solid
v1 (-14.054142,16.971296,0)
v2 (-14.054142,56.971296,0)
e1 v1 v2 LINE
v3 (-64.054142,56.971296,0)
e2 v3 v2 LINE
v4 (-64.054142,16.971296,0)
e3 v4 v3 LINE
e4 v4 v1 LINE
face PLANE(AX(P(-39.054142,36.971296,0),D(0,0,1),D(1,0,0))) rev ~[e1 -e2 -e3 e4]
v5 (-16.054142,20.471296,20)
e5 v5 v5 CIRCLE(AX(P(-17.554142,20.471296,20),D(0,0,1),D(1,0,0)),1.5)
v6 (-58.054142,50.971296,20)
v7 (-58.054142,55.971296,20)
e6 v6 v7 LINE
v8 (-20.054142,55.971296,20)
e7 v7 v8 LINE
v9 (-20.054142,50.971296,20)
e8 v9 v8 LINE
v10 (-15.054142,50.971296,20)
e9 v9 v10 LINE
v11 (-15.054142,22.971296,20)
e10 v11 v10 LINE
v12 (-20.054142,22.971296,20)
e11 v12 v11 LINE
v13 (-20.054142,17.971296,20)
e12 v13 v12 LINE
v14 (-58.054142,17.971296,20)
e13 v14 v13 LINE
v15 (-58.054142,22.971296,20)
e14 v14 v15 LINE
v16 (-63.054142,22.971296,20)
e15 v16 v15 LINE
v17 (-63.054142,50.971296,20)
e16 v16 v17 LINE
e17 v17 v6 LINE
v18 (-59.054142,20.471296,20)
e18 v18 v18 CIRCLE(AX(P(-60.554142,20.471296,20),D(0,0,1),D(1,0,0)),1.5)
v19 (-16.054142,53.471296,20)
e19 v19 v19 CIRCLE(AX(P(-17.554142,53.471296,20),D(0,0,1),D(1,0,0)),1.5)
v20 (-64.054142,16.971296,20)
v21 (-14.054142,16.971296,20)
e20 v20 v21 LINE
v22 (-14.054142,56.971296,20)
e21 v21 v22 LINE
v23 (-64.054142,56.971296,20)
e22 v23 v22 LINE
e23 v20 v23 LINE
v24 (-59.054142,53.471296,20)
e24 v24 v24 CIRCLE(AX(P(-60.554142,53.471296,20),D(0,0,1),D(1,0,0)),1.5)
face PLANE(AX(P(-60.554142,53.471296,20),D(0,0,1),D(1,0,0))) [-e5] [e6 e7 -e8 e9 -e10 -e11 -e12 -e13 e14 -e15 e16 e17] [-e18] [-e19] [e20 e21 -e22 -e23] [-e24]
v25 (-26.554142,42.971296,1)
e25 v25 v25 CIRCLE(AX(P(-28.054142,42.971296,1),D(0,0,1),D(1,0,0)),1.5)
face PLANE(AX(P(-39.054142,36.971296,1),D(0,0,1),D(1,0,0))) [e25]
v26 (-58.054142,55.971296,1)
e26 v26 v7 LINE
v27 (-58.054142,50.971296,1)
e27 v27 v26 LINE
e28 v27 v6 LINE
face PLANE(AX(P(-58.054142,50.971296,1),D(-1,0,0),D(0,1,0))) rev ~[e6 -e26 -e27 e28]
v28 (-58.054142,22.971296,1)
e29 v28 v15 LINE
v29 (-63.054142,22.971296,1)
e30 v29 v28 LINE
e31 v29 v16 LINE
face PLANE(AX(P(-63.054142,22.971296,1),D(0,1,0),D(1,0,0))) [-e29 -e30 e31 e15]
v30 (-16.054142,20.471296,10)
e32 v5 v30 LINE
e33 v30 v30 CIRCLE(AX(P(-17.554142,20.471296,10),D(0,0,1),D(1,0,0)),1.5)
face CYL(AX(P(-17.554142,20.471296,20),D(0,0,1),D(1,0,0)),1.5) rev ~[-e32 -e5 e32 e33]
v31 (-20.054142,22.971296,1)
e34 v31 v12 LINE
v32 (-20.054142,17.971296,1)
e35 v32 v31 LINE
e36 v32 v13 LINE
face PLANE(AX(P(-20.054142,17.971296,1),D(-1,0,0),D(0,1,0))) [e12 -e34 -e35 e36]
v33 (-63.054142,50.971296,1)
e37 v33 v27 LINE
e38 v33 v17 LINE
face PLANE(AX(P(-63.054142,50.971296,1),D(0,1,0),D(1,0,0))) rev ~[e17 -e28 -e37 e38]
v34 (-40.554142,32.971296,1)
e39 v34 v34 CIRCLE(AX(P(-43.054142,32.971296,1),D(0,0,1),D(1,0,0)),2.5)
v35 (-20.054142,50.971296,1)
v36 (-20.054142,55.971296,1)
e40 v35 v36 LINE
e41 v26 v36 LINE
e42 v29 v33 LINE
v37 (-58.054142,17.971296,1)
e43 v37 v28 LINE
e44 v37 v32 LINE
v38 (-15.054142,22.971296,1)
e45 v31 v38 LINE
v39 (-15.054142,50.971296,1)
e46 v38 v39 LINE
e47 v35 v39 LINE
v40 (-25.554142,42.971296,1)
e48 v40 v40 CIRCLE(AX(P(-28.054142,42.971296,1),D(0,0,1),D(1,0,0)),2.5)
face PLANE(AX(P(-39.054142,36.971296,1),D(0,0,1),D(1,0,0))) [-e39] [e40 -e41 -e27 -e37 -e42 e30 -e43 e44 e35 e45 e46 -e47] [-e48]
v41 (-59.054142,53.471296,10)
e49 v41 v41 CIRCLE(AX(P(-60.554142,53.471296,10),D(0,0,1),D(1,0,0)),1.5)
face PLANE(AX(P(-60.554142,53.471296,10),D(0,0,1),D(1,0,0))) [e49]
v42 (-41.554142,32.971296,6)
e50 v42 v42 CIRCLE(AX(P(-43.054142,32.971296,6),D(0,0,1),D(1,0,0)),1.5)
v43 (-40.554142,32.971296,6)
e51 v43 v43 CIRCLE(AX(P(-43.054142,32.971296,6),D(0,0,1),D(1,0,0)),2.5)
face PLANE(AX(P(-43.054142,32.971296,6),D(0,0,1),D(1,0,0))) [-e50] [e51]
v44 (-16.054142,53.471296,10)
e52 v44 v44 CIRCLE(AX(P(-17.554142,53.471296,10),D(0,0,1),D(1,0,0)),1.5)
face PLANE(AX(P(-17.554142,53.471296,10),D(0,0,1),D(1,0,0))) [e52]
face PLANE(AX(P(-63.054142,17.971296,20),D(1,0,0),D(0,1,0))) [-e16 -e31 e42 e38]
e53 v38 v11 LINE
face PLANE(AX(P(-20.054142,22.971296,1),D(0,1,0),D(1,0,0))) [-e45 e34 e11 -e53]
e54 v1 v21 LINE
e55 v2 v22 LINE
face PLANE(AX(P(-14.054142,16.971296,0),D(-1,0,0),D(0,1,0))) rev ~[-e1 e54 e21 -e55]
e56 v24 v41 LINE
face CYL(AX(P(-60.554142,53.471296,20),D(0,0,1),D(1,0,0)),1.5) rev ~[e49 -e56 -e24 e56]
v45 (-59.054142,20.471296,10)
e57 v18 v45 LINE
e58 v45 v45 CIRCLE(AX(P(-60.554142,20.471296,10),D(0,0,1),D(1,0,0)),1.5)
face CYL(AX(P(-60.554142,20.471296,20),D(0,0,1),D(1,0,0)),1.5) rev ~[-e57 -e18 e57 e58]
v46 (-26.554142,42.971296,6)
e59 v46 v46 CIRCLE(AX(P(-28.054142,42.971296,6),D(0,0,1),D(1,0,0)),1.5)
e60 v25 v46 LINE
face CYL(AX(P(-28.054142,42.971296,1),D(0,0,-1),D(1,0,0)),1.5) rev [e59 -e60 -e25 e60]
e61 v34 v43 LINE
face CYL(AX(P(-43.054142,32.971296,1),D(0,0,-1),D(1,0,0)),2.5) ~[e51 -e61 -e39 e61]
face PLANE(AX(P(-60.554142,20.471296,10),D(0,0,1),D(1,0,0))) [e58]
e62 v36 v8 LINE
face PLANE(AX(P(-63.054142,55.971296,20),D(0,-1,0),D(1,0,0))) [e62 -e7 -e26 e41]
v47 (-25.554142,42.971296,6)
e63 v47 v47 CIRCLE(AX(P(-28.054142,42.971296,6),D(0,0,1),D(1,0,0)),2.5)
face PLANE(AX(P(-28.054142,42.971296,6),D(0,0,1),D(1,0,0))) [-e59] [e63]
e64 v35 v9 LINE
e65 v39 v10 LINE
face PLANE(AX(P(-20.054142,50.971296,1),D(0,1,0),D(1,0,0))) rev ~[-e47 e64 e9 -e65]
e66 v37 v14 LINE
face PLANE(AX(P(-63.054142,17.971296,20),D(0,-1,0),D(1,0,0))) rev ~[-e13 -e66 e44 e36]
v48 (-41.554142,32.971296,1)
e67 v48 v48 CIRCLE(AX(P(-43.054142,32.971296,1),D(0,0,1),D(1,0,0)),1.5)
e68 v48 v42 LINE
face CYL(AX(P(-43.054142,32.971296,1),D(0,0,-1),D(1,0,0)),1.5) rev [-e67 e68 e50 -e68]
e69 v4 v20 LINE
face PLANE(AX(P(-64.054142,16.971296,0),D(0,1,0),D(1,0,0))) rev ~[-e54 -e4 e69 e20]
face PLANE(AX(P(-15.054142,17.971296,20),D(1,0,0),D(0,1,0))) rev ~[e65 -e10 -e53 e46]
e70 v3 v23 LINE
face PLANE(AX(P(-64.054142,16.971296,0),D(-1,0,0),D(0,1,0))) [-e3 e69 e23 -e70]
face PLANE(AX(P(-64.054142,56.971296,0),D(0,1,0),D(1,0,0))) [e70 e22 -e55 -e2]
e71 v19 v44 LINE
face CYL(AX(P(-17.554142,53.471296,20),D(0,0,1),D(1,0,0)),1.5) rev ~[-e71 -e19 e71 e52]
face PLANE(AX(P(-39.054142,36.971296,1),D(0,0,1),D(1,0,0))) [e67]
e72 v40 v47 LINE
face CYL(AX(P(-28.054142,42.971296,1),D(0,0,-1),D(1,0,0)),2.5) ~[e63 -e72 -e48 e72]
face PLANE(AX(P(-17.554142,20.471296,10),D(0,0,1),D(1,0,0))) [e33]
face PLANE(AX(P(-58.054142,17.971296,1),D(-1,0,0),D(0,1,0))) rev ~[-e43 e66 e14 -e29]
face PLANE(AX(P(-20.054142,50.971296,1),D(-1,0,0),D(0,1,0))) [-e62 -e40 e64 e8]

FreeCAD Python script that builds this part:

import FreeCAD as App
import Part
import Sketcher
Q = App.Units.Quantity


def add_polygon(sketch, points):
    """Adds a closed chain of lines whose ends are joined by coincident constraints."""
    first, n = sketch.GeometryCount, len(points)
    for a, b in zip(points, points[1:] + points[:1]):
        sketch.addGeometry(Part.LineSegment(App.Vector(*a, 0), App.Vector(*b, 0)), False)
    for i in range(n):
        sketch.addConstraint(Sketcher.Constraint("Coincident", first + i, 2, first + (i + 1) % n, 1))

doc = App.newDocument("Part")
body = doc.addObject("PartDesign::Body", "Body")

# Sketch on XY plane
sketch1 = body.newObject("Sketcher::SketchObject", "Sketch")
sketch1.AttachmentSupport = (doc.getObject("XY_Plane"), [""])
sketch1.MapMode = "FlatFace"
add_polygon(sketch1, [(-64, 57), (-64, 17), (-14, 17), (-14, 57)])  # lines 0-3
sketch1.addConstraint(Sketcher.Constraint("Vertical", 0))
sketch1.addConstraint(Sketcher.Constraint("Horizontal", 1))
sketch1.addConstraint(Sketcher.Constraint("Vertical", 2))
sketch1.addConstraint(Sketcher.Constraint("Horizontal", 3))
sketch1.addConstraint(Sketcher.Constraint("DistanceX", 1, 1, 1, 2, Q("50 mm")))
sketch1.addConstraint(Sketcher.Constraint("DistanceY", 0, 2, 0, 1, Q("40 mm")))
sketch1.addConstraint(Sketcher.Constraint("DistanceX", 0, 2, -1, 1, Q("64.054142 mm")))
sketch1.addConstraint(Sketcher.Constraint("DistanceY", -1, 1, 0, 2, Q("16.971296 mm")))
pad1 = body.newObject("PartDesign::Pad", "Pad")
pad1.Profile = sketch1
pad1.Length = 20

# Sketch on XY plane
sketch2 = body.newObject("Sketcher::SketchObject", "Sketch001")
sketch2.AttachmentSupport = (doc.getObject("XY_Plane"), [""])
sketch2.MapMode = "FlatFace"
sketch2.AttachmentOffset = App.Placement(App.Vector(0, 0, 20), App.Rotation())
add_polygon(sketch2, [(-63, 56), (-63, 18), (-15, 18), (-15, 56)])  # lines 0-3
sketch2.addConstraint(Sketcher.Constraint("Vertical", 0))
sketch2.addConstraint(Sketcher.Constraint("Horizontal", 1))
sketch2.addConstraint(Sketcher.Constraint("Vertical", 2))
sketch2.addConstraint(Sketcher.Constraint("Horizontal", 3))
sketch2.addConstraint(Sketcher.Constraint("DistanceX", 1, 1, 1, 2, Q("48 mm")))
sketch2.addConstraint(Sketcher.Constraint("DistanceY", 0, 2, 0, 1, Q("38 mm")))
sketch2.addConstraint(Sketcher.Constraint("DistanceX", 0, 2, -1, 1, Q("63.054142 mm")))
sketch2.addConstraint(Sketcher.Constraint("DistanceY", -1, 1, 0, 2, Q("17.971296 mm")))
pocket1 = body.newObject("PartDesign::Pocket", "Pocket")
pocket1.Profile = sketch2
pocket1.Length = 19

# Sketch on XY plane
sketch3 = body.newObject("Sketcher::SketchObject", "Sketch002")
sketch3.AttachmentSupport = (doc.getObject("XY_Plane"), [""])
sketch3.MapMode = "FlatFace"
sketch3.AttachmentOffset = App.Placement(App.Vector(0, 0, 1), App.Rotation())
add_polygon(sketch3, [(-63.1, 56), (-63.1, 51), (-58.1, 51), (-58.1, 56)])  # lines 0-3
add_polygon(sketch3, [(-63.1, 23), (-63.1, 18), (-58.1, 18), (-58.1, 23)])  # lines 4-7
add_polygon(sketch3, [(-20.1, 56), (-20.1, 51), (-15.1, 51), (-15.1, 56)])  # lines 8-11
add_polygon(sketch3, [(-20.1, 23), (-20.1, 18), (-15.1, 18), (-15.1, 23)])  # lines 12-15
sketch3.addConstraint(Sketcher.Constraint("Vertical", 0))
sketch3.addConstraint(Sketcher.Constraint("Horizontal", 1))
sketch3.addConstraint(Sketcher.Constraint("Vertical", 2))
sketch3.addConstraint(Sketcher.Constraint("Horizontal", 3))
sketch3.addConstraint(Sketcher.Constraint("Vertical", 4))
sketch3.addConstraint(Sketcher.Constraint("Horizontal", 5))
sketch3.addConstraint(Sketcher.Constraint("Vertical", 6))
sketch3.addConstraint(Sketcher.Constraint("Horizontal", 7))
sketch3.addConstraint(Sketcher.Constraint("Vertical", 8))
sketch3.addConstraint(Sketcher.Constraint("Horizontal", 9))
sketch3.addConstraint(Sketcher.Constraint("Vertical", 10))
sketch3.addConstraint(Sketcher.Constraint("Horizontal", 11))
sketch3.addConstraint(Sketcher.Constraint("Vertical", 12))
sketch3.addConstraint(Sketcher.Constraint("Horizontal", 13))
sketch3.addConstraint(Sketcher.Constraint("Vertical", 14))
sketch3.addConstraint(Sketcher.Constraint("Horizontal", 15))
sketch3.addConstraint(Sketcher.Constraint("Horizontal", 1, 2, 8, 2))
sketch3.addConstraint(Sketcher.Constraint("Horizontal", 3, 2, 10, 2))
sketch3.addConstraint(Sketcher.Constraint("Horizontal", 5, 2, 12, 2))
sketch3.addConstraint(Sketcher.Constraint("Horizontal", 7, 2, 14, 2))
sketch3.addConstraint(Sketcher.Constraint("Vertical", 3, 2, 4, 2))
sketch3.addConstraint(Sketcher.Constraint("Vertical", 2, 2, 5, 2))
sketch3.addConstraint(Sketcher.Constraint("Vertical", 11, 2, 12, 2))
sketch3.addConstraint(Sketcher.Constraint("Vertical", 10, 2, 13, 2))
sketch3.addConstraint(Sketcher.Constraint("Equal", 7, 9))
sketch3.addConstraint(Sketcher.Constraint("Equal", 15, 0))
sketch3.addConstraint(Sketcher.Constraint("Equal", 2, 4))
sketch3.addConstraint(Sketcher.Constraint("DistanceX", 1, 1, 1, 2, Q("5 mm")))
sketch3.addConstraint(Sketcher.Constraint("DistanceY", 4, 2, 0, 2, Q("33 mm")))
sketch3.addConstraint(Sketcher.Constraint("DistanceX", 1, 2, 8, 2, Q("38 mm")))
sketch3.addConstraint(Sketcher.Constraint("DistanceX", 8, 2, -1, 1, Q("20.054142 mm")))
sketch3.addConstraint(Sketcher.Constraint("DistanceY", -1, 1, 0, 2, Q("50.971296 mm")))
pad2 = body.newObject("PartDesign::Pad", "Pad001")
pad2.Profile = sketch3
pad2.Length = 19

# Sketch on XY plane
sketch4 = body.newObject("Sketcher::SketchObject", "Sketch003")
sketch4.AttachmentSupport = (doc.getObject("XY_Plane"), [""])
sketch4.MapMode = "FlatFace"
sketch4.AttachmentOffset = App.Placement(App.Vector(0, 0, 20), App.Rotation())
sketch4.addGeometry(Part.Circle(App.Vector(-60.6, 53.5, 0), App.Vector(0, 0, 1), 1.5), False)
sketch4.addGeometry(Part.Circle(App.Vector(-60.6, 20.5, 0), App.Vector(0, 0, 1), 1.5), False)
sketch4.addGeometry(Part.Circle(App.Vector(-17.6, 20.5, 0), App.Vector(0, 0, 1), 1.5), False)
sketch4.addGeometry(Part.Circle(App.Vector(-17.6, 53.5, 0), App.Vector(0, 0, 1), 1.5), False)
sketch4.addConstraint(Sketcher.Constraint("Equal", 0, 1))
sketch4.addConstraint(Sketcher.Constraint("Equal", 1, 2))
sketch4.addConstraint(Sketcher.Constraint("Equal", 2, 3))
sketch4.addConstraint(Sketcher.Constraint("Horizontal", 1, 3, 2, 3))
sketch4.addConstraint(Sketcher.Constraint("Horizontal", 0, 3, 3, 3))
sketch4.addConstraint(Sketcher.Constraint("Vertical", 0, 3, 1, 3))
sketch4.addConstraint(Sketcher.Constraint("Vertical", 2, 3, 3, 3))
sketch4.addConstraint(Sketcher.Constraint("Diameter", 0, Q("3 mm")))
sketch4.addConstraint(Sketcher.Constraint("DistanceY", 1, 3, 0, 3, Q("33 mm")))
sketch4.addConstraint(Sketcher.Constraint("DistanceX", 1, 3, 2, 3, Q("43 mm")))
sketch4.addConstraint(Sketcher.Constraint("DistanceX", 2, 3, -1, 1, Q("17.554142 mm")))
sketch4.addConstraint(Sketcher.Constraint("DistanceY", -1, 1, 0, 3, Q("53.471296 mm")))
pocket2 = body.newObject("PartDesign::Pocket", "Pocket001")
pocket2.Profile = sketch4
pocket2.Length = 10

# Sketch on XY plane
sketch5 = body.newObject("Sketcher::SketchObject", "Sketch004")
sketch5.AttachmentSupport = (doc.getObject("XY_Plane"), [""])
sketch5.MapMode = "FlatFace"
sketch5.AttachmentOffset = App.Placement(App.Vector(0, 0, 1), App.Rotation())
sketch5.addGeometry(Part.Circle(App.Vector(-43.1, 33, 0), App.Vector(0, 0, 1), 2.5), False)
sketch5.addGeometry(Part.Circle(App.Vector(-43.1, 33, 0), App.Vector(0, 0, 1), 1.5), False)
sketch5.addGeometry(Part.Circle(App.Vector(-28.1, 43, 0), App.Vector(0, 0, 1), 2.5), False)
sketch5.addGeometry(Part.Circle(App.Vector(-28.1, 43, 0), App.Vector(0, 0, 1), 1.5), False)
sketch5.addConstraint(Sketcher.Constraint("Coincident", 1, 3, 0, 3))
sketch5.addConstraint(Sketcher.Constraint("Coincident", 3, 3, 2, 3))
sketch5.addConstraint(Sketcher.Constraint("Equal", 0, 2))
sketch5.addConstraint(Sketcher.Constraint("Equal", 1, 3))
sketch5.addConstraint(Sketcher.Constraint("Diameter", 0, Q("5 mm")))
sketch5.addConstraint(Sketcher.Constraint("Diameter", 1, Q("3 mm")))
sketch5.addConstraint(Sketcher.Constraint("DistanceX", 0, 3, 2, 3, Q("15 mm")))
sketch5.addConstraint(Sketcher.Constraint("DistanceY", 0, 3, 2, 3, Q("10 mm")))
sketch5.addConstraint(Sketcher.Constraint("DistanceX", 2, 3, -1, 1, Q("28.054142 mm")))
sketch5.addConstraint(Sketcher.Constraint("DistanceY", -1, 1, 0, 3, Q("32.971296 mm")))
pad3 = body.newObject("PartDesign::Pad", "Pad002")
pad3.Profile = sketch5
pad3.Length = 5

doc.recompute()
